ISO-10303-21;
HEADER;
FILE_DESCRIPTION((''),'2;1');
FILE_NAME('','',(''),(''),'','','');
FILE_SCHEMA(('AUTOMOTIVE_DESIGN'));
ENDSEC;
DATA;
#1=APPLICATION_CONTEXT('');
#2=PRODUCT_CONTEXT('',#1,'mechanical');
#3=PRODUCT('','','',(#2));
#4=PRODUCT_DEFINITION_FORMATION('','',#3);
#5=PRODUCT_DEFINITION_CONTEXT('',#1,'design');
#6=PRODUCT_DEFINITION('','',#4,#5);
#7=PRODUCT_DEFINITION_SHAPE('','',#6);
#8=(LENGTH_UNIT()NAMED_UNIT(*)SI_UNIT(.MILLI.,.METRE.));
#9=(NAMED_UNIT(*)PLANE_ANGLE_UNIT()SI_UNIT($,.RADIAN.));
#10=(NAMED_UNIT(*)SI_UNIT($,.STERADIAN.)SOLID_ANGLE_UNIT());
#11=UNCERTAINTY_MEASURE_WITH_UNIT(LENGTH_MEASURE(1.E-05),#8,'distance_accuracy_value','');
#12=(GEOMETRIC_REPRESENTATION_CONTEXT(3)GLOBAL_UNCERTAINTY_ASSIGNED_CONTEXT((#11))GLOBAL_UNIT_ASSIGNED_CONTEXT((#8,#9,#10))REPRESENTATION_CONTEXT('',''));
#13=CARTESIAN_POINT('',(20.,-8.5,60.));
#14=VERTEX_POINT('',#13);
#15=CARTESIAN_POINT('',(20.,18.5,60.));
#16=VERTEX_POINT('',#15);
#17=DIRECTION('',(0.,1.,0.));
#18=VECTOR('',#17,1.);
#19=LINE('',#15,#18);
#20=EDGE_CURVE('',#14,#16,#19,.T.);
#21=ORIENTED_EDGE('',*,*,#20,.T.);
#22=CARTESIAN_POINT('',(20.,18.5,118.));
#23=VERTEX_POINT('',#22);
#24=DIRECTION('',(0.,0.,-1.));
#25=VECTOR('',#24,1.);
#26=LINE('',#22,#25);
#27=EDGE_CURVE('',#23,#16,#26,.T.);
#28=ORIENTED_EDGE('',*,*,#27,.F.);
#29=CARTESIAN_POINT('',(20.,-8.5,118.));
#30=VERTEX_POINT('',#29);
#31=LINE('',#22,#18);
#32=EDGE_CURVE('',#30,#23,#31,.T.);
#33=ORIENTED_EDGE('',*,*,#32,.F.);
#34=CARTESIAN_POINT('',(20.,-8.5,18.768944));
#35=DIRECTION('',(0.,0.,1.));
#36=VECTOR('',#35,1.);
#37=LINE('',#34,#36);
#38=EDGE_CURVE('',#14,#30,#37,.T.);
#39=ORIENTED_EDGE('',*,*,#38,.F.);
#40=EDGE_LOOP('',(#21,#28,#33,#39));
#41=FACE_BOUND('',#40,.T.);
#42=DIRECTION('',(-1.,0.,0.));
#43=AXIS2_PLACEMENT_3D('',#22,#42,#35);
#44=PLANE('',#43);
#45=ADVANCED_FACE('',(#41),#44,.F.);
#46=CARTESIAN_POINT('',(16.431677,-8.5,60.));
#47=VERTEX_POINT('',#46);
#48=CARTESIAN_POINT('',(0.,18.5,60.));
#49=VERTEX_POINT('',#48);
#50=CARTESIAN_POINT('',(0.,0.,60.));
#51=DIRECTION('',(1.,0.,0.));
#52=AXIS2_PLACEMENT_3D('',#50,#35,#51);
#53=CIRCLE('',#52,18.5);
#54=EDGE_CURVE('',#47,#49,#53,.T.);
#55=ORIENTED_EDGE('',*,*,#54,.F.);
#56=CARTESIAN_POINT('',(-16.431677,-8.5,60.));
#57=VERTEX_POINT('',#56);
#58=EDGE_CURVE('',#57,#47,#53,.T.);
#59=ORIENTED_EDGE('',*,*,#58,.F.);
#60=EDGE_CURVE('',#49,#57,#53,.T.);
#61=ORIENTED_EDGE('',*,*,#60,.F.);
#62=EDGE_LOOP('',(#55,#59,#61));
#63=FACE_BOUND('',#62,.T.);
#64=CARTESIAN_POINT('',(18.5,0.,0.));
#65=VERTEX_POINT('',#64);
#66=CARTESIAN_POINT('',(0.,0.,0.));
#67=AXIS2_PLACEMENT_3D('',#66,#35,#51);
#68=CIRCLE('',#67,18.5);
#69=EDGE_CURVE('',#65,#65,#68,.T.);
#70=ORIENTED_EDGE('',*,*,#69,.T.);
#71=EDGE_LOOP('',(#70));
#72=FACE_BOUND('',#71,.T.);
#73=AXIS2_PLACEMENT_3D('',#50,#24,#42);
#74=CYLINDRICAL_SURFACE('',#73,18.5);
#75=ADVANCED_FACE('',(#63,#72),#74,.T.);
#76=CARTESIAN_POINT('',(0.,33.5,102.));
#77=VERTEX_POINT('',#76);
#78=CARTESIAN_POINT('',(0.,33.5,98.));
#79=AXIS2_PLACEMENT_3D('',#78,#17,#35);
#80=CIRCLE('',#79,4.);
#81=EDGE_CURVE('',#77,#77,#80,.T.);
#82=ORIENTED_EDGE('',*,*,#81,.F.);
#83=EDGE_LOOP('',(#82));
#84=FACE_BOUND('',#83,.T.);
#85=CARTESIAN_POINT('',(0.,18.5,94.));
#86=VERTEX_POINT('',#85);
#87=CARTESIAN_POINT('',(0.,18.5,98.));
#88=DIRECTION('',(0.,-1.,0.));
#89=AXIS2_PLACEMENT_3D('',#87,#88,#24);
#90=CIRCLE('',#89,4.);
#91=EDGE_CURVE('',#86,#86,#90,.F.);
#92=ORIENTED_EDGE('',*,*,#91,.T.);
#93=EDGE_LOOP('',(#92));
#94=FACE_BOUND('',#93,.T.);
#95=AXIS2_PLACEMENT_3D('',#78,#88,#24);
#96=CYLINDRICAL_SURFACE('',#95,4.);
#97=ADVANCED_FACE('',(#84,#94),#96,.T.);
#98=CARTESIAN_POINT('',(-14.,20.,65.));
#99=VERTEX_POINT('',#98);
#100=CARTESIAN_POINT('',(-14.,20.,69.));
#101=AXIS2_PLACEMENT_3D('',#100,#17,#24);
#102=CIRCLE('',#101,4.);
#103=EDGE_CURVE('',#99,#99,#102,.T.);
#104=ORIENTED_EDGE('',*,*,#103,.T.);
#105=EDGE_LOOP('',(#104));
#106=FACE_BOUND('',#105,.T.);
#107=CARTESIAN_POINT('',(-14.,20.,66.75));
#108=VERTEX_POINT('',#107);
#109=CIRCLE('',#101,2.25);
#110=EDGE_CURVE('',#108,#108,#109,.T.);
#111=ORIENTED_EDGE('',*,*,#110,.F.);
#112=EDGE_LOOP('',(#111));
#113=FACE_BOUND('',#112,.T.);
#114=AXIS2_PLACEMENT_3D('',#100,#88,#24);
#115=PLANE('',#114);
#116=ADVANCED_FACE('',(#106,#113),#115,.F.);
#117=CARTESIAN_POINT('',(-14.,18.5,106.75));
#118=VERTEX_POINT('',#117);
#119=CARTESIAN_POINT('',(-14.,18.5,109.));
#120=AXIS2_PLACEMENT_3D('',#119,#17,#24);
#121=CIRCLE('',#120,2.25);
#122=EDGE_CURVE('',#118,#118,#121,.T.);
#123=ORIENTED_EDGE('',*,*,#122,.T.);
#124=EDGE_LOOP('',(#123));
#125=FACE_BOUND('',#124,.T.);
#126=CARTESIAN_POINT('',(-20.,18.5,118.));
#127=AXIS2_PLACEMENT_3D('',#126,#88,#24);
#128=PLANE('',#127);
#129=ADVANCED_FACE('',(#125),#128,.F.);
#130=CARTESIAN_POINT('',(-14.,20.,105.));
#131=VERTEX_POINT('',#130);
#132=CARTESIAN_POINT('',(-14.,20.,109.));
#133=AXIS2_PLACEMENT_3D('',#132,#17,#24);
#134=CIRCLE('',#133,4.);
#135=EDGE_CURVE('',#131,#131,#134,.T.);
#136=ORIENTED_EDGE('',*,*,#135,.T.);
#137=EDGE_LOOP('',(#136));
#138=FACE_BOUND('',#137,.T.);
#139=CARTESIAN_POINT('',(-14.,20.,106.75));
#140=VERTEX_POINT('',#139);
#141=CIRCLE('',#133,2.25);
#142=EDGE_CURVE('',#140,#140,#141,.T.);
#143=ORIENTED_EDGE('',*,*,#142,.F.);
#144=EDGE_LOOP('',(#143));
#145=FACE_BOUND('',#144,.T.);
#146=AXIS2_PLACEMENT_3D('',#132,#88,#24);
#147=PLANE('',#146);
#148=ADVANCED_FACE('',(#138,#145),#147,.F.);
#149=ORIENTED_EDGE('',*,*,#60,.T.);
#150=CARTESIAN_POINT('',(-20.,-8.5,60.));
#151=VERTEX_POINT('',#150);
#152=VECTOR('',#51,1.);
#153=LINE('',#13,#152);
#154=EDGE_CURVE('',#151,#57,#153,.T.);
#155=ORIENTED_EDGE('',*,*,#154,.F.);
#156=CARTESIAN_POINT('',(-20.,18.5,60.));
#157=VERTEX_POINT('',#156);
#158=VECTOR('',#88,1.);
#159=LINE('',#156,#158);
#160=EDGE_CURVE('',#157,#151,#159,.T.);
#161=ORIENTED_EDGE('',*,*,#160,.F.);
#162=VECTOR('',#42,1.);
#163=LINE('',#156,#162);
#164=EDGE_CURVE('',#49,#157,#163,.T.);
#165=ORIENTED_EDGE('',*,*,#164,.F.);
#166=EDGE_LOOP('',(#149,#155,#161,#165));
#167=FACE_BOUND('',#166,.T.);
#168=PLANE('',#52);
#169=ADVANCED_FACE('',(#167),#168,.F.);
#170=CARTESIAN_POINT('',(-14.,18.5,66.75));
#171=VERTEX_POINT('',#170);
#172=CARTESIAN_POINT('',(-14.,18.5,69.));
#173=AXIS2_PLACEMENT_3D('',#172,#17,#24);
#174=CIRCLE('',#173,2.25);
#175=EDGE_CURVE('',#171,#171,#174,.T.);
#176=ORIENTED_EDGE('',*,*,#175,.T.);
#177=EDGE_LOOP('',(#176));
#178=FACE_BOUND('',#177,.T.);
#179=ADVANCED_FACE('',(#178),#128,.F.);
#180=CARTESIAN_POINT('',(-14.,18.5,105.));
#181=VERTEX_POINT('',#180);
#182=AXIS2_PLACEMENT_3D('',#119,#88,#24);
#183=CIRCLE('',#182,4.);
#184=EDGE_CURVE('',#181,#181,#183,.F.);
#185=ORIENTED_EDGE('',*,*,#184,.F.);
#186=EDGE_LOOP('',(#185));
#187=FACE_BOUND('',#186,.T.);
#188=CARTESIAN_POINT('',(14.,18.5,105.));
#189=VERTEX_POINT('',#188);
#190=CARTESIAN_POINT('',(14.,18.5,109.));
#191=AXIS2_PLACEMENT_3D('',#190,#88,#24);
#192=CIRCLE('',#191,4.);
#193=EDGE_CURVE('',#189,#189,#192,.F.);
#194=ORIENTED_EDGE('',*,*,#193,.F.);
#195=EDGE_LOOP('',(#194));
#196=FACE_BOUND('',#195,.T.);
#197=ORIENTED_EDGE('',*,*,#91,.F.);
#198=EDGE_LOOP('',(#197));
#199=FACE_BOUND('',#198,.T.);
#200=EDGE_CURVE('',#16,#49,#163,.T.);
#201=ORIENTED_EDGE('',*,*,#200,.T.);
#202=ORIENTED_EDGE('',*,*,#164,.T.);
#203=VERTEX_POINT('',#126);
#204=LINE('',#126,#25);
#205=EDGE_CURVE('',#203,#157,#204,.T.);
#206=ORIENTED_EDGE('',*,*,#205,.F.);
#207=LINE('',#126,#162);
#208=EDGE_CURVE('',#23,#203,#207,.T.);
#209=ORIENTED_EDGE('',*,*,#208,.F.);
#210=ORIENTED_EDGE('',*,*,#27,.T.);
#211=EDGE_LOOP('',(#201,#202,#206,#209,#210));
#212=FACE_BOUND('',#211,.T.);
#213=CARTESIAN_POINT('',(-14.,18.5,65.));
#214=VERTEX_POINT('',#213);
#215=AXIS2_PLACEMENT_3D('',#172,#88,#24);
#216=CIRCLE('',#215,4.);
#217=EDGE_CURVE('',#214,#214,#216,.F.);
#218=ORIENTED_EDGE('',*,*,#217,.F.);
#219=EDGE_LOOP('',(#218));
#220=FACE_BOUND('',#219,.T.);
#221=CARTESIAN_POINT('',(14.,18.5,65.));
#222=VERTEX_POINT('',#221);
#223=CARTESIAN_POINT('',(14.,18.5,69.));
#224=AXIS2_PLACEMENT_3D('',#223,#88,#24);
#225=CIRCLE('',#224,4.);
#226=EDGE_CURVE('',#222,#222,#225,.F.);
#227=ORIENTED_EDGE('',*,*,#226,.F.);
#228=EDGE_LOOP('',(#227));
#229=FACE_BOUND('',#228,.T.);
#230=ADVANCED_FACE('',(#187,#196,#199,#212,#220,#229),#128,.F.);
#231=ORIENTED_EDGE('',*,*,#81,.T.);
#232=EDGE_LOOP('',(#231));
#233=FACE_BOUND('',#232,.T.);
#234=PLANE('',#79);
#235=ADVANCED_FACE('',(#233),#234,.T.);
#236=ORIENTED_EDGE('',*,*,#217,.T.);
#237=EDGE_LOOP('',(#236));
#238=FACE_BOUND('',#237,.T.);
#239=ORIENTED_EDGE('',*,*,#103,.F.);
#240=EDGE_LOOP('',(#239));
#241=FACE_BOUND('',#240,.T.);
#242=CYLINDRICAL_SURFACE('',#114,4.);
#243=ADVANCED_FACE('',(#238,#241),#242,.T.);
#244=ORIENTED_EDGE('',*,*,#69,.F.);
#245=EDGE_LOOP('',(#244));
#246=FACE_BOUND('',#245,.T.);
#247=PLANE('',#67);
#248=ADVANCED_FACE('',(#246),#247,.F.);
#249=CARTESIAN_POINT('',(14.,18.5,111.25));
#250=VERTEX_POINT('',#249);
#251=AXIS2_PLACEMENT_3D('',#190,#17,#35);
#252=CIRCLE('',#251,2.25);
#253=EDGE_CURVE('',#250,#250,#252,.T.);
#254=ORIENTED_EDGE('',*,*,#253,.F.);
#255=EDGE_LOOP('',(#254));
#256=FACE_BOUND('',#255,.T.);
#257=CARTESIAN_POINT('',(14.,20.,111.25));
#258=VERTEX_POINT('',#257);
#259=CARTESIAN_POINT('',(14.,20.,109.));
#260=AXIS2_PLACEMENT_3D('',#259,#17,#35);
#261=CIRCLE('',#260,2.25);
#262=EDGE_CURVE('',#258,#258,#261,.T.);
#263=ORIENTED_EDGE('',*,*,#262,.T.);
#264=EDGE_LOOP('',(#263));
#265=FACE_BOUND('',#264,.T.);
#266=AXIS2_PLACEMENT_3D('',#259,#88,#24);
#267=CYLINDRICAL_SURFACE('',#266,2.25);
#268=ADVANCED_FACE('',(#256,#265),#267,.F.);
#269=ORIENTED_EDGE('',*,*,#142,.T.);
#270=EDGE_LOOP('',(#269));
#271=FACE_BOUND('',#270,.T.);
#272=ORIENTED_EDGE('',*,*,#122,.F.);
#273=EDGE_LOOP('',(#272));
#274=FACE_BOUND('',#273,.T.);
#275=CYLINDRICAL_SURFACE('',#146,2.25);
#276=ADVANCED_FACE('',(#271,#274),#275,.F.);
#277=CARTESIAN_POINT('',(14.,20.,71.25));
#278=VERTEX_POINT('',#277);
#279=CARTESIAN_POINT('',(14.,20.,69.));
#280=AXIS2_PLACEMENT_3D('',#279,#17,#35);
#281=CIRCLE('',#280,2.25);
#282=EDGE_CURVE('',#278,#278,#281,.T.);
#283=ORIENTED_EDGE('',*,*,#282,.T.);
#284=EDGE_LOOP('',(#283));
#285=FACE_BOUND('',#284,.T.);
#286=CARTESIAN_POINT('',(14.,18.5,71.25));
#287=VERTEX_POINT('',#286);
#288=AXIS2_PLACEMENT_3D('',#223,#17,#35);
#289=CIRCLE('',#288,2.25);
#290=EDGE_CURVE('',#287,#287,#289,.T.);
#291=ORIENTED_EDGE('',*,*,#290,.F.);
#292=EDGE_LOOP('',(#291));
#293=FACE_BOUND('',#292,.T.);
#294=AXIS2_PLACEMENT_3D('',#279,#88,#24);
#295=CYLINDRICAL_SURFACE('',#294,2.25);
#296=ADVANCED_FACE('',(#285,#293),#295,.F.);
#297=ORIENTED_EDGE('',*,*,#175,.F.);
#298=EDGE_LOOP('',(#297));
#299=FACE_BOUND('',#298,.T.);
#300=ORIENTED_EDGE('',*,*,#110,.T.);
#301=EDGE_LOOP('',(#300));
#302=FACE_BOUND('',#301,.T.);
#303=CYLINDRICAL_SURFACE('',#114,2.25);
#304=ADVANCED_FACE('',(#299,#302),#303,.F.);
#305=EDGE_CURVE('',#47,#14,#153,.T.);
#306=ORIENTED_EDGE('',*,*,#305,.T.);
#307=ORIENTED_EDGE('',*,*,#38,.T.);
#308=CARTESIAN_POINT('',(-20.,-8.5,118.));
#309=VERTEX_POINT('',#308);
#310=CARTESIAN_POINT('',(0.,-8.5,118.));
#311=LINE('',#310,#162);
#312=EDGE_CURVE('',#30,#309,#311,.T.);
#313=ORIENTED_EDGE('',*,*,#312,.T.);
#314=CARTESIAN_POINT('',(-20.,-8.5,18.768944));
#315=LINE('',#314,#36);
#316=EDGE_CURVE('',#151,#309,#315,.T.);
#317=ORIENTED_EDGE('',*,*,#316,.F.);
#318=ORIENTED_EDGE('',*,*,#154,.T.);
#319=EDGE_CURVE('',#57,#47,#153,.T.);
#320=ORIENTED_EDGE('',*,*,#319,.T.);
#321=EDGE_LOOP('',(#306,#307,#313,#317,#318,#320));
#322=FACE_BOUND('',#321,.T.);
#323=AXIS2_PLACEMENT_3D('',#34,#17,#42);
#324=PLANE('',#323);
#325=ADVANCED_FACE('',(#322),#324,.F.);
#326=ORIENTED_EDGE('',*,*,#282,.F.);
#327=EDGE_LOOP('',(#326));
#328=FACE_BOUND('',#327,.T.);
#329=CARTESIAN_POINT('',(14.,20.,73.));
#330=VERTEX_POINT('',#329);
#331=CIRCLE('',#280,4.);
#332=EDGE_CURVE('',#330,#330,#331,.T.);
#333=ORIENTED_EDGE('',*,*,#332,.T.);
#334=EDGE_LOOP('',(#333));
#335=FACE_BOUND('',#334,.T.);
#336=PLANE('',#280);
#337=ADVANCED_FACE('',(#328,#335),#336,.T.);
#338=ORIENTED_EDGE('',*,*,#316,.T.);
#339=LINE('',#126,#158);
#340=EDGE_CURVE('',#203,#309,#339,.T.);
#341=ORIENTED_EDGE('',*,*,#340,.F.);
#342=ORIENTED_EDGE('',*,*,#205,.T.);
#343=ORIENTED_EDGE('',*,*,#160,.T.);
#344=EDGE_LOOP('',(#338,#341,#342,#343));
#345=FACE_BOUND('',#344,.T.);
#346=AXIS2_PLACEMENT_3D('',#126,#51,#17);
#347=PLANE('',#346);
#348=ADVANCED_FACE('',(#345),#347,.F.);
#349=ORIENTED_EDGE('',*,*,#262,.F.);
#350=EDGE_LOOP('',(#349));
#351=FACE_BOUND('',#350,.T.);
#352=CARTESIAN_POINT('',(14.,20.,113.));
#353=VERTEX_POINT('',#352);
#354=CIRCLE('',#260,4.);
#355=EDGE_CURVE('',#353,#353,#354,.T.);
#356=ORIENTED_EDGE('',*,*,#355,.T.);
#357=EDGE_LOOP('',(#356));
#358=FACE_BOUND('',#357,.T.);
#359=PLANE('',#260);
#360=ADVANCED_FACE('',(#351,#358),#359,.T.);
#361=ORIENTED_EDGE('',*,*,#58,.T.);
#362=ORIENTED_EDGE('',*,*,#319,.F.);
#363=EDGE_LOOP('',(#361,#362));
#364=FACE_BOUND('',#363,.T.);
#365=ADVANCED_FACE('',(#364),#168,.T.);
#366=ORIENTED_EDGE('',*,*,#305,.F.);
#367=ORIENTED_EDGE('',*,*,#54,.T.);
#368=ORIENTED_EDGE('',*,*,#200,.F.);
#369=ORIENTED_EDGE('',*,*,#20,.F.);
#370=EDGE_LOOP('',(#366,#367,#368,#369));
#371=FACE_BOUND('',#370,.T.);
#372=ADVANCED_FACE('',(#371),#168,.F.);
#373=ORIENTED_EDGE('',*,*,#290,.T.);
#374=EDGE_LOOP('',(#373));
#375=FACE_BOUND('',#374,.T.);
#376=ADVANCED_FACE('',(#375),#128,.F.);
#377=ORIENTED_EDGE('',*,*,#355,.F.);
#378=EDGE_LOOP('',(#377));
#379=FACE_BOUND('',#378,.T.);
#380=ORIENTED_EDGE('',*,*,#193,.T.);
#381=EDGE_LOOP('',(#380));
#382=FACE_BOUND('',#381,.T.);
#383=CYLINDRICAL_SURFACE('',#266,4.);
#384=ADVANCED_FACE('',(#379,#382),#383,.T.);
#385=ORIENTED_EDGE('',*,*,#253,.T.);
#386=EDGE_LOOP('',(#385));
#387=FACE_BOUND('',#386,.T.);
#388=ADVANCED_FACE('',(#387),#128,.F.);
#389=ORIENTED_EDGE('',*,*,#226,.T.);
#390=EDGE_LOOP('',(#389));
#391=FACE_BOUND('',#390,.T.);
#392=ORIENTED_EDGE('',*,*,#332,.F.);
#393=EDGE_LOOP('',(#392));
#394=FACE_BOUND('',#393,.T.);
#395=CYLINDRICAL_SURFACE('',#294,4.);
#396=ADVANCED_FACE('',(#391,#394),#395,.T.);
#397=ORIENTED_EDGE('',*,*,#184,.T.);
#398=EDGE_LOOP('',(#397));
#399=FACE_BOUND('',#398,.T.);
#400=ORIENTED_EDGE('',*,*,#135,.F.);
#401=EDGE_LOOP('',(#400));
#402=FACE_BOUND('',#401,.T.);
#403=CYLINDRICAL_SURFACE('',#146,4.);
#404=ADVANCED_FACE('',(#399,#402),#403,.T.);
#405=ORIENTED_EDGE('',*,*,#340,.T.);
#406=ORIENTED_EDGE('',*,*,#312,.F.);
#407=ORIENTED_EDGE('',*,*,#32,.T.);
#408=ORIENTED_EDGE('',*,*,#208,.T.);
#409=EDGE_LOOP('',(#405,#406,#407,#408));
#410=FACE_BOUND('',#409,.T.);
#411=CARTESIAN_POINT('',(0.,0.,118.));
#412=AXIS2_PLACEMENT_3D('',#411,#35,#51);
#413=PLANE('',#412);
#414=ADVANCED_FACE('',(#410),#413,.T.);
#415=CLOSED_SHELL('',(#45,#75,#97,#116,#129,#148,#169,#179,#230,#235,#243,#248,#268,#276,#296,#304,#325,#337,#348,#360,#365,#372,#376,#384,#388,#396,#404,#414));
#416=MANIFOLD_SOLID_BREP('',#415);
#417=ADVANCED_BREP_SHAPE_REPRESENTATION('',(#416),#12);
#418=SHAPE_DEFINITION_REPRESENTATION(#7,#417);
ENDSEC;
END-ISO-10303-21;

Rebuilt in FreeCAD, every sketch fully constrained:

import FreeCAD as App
import Part
import Sketcher

V = App.Vector


def add_polygon(sketch, points):
    """Adds a closed chain of lines whose ends are joined by coincident constraints."""
    first, n = sketch.GeometryCount, len(points)
    for a, b in zip(points, points[1:] + points[:1]):
        sketch.addGeometry(Part.LineSegment(App.Vector(*a, 0), App.Vector(*b, 0)), False)
    for i in range(n):
        sketch.addConstraint(Sketcher.Constraint("Coincident", first + i, 2, first + (i + 1) % n, 1))

doc = App.newDocument("Part")
body = doc.addObject("PartDesign::Body", "Body")

sketch1 = doc.addObject("Sketcher::SketchObject", "Sketch")
body.addObject(sketch1)
sketch1.AttachmentSupport = (doc.XY_Plane, [""])
sketch1.MapMode = "FlatFace"
sketch1.addGeometry(Part.Circle(V(0, 0, 0), V(0, 0, 1), 18), False)
sketch1.addConstraint(Sketcher.Constraint("Coincident", 0, 3, -1, 1))
sketch1.addConstraint(Sketcher.Constraint("Diameter", 0, 37.0))
pad1 = doc.addObject("PartDesign::Pad", "Pad")
body.addObject(pad1)
pad1.Profile = sketch1
pad1.Length = 60

sketch2 = doc.addObject("Sketcher::SketchObject", "Sketch001")
body.addObject(sketch2)
sketch2.AttachmentSupport = (doc.XY_Plane, [""])
sketch2.MapMode = "FlatFace"
sketch2.AttachmentOffset = App.Placement(V(0, 0, 60), App.Rotation())
add_polygon(sketch2, [(-20, 18), (-20, -18), (20, -18), (20, 18)])
sketch2.addConstraint(Sketcher.Constraint("Vertical", 0))
sketch2.addConstraint(Sketcher.Constraint("Horizontal", 1))
sketch2.addConstraint(Sketcher.Constraint("Vertical", 2))
sketch2.addConstraint(Sketcher.Constraint("Horizontal", 3))
sketch2.addConstraint(Sketcher.Constraint("Symmetric", 0, 2, 2, 2, -1, 1))
sketch2.addConstraint(Sketcher.Constraint("DistanceX", 1, 1, 1, 2, 40.0))
sketch2.addConstraint(Sketcher.Constraint("DistanceY", 0, 2, 0, 1, 37.0))
pad2 = doc.addObject("PartDesign::Pad", "Pad001")
body.addObject(pad2)
pad2.Profile = sketch2
pad2.Length = 58

sketch3 = doc.addObject("Sketcher::SketchObject", "Sketch002")
body.addObject(sketch3)
sketch3.AttachmentSupport = (doc.XZ_Plane, [""])
sketch3.MapMode = "FlatFace"
sketch3.AttachmentOffset = App.Placement(V(0, 0, -18.5), App.Rotation())
sketch3.addGeometry(Part.Circle(V(0, 98, 0), V(0, 0, 1), 4), False)
sketch3.addConstraint(Sketcher.Constraint("PointOnObject", 0, 3, -2))
sketch3.addConstraint(Sketcher.Constraint("Diameter", 0, 8.0))
sketch3.addConstraint(Sketcher.Constraint("DistanceY", -1, 1, 0, 3, 98.0))
pad3 = doc.addObject("PartDesign::Pad", "Pad002")
body.addObject(pad3)
pad3.Profile = sketch3
pad3.Length = 15
pad3.Reversed = True

sketch4 = doc.addObject("Sketcher::SketchObject", "Sketch003")
body.addObject(sketch4)
sketch4.AttachmentSupport = (doc.XY_Plane, [""])
sketch4.MapMode = "FlatFace"
sketch4.AttachmentOffset = App.Placement(V(0, 0, 118), App.Rotation())
add_polygon(sketch4, [(-20, -8), (-20, -18), (20, -18), (20, -8)])
sketch4.addConstraint(Sketcher.Constraint("Vertical", 0))
sketch4.addConstraint(Sketcher.Constraint("Horizontal", 1))
sketch4.addConstraint(Sketcher.Constraint("Vertical", 2))
sketch4.addConstraint(Sketcher.Constraint("Horizontal", 3))
sketch4.addConstraint(Sketcher.Constraint("DistanceX", 1, 1, 1, 2, 40.0))
sketch4.addConstraint(Sketcher.Constraint("DistanceY", 0, 2, 0, 1, 10.0))
sketch4.addConstraint(Sketcher.Constraint("DistanceX", 0, 2, -1, 1, 20.0))
sketch4.addConstraint(Sketcher.Constraint("DistanceY", 0, 2, -1, 1, 18.5))
pocket1 = doc.addObject("PartDesign::Pocket", "Pocket")
body.addObject(pocket1)
pocket1.Profile = sketch4
pocket1.Type = "TwoLengths"
pocket1.Length = 125.282943
pocket1.Length2 = 58
pocket1.Reversed = True

sketch5 = doc.addObject("Sketcher::SketchObject", "Sketch004")
body.addObject(sketch5)
sketch5.AttachmentSupport = (doc.XZ_Plane, [""])
sketch5.MapMode = "FlatFace"
sketch5.AttachmentOffset = App.Placement(V(0, 0, -18.5), App.Rotation())
sketch5.addGeometry(Part.Circle(V(14, 69, 0), V(0, 0, 1), 4), False)
sketch5.addGeometry(Part.Circle(V(14, 69, 0), V(0, 0, 1), 2.2), False)
sketch5.addGeometry(Part.Circle(V(14, 109, 0), V(0, 0, 1), 4), False)
sketch5.addGeometry(Part.Circle(V(14, 109, 0), V(0, 0, 1), 2.2), False)
sketch5.addGeometry(Part.Circle(V(-14, 109, 0), V(0, 0, 1), 4), False)
sketch5.addGeometry(Part.Circle(V(-14, 109, 0), V(0, 0, 1), 2.2), False)
sketch5.addGeometry(Part.Circle(V(-14, 69, 0), V(0, 0, 1), 4), False)
sketch5.addGeometry(Part.Circle(V(-14, 69, 0), V(0, 0, 1), 2.2), False)
sketch5.addConstraint(Sketcher.Constraint("Coincident", 1, 3, 0, 3))
sketch5.addConstraint(Sketcher.Constraint("Coincident", 3, 3, 2, 3))
sketch5.addConstraint(Sketcher.Constraint("Coincident", 5, 3, 4, 3))
sketch5.addConstraint(Sketcher.Constraint("Coincident", 7, 3, 6, 3))
sketch5.addConstraint(Sketcher.Constraint("Equal", 0, 2))
sketch5.addConstraint(Sketcher.Constraint("Equal", 1, 3))
sketch5.addConstraint(Sketcher.Constraint("Equal", 2, 4))
sketch5.addConstraint(Sketcher.Constraint("Equal", 3, 5))
sketch5.addConstraint(Sketcher.Constraint("Equal", 4, 6))
sketch5.addConstraint(Sketcher.Constraint("Equal", 5, 7))
sketch5.addConstraint(Sketcher.Constraint("Symmetric", 2, 3, 4, 3, -2))
sketch5.addConstraint(Sketcher.Constraint("Symmetric", 0, 3, 6, 3, -2))
sketch5.addConstraint(Sketcher.Constraint("Vertical", 1, 3, 2, 3))
sketch5.addConstraint(Sketcher.Constraint("Diameter", 0, 8.0))
sketch5.addConstraint(Sketcher.Constraint("Diameter", 1, 4.5))
sketch5.addConstraint(Sketcher.Constraint("DistanceX", -1, 1, 0, 3, 14.0))
sketch5.addConstraint(Sketcher.Constraint("DistanceY", -1, 1, 0, 3, 69.0))
sketch5.addConstraint(Sketcher.Constraint("DistanceY", -1, 1, 2, 3, 109.0))
pad4 = doc.addObject("PartDesign::Pad", "Pad003")
body.addObject(pad4)
pad4.Profile = sketch5
pad4.Length = 1.5
pad4.Reversed = True

doc.recompute()
